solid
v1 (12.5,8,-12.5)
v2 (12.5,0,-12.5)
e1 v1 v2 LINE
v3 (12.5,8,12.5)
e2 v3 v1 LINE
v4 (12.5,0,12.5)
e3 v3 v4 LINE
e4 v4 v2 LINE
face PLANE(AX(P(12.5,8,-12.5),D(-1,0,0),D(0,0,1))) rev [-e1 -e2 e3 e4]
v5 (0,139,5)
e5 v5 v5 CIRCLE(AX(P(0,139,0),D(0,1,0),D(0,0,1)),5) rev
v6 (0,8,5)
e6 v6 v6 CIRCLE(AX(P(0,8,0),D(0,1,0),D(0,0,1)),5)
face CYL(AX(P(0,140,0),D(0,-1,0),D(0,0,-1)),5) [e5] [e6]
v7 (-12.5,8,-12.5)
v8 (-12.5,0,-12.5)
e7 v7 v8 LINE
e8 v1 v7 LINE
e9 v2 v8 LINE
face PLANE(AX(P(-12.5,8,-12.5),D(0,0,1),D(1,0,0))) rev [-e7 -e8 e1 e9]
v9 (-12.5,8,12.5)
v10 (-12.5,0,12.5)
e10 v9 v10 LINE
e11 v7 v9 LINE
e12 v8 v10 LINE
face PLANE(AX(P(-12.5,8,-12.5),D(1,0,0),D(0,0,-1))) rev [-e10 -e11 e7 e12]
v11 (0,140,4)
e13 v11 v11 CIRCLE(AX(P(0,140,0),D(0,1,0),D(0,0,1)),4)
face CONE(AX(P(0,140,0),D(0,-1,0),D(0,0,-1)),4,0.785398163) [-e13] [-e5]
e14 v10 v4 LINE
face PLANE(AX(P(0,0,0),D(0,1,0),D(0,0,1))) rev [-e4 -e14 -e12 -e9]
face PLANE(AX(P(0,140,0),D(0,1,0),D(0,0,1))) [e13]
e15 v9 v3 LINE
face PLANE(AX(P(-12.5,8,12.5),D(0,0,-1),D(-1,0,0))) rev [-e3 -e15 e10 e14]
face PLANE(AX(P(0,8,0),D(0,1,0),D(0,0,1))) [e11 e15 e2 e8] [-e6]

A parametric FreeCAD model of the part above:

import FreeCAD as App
import Part
import Sketcher


def edges_at(feature, points):
    """Names of the edges that pass closest to the given points."""
    edges = feature.Shape.Edges
    near = lambda p: min(range(len(edges)), key=lambda i: edges[i].distToShape(Part.Vertex(*p))[0])
    return sorted({f"Edge{near(p) + 1}" for p in points})

doc = App.newDocument("Part")
body = doc.addObject("PartDesign::Body", "Body")

sketch1 = doc.addObject("Sketcher::SketchObject", "Sketch")
body.addObject(sketch1)
sketch1.AttachmentSupport = (doc.XZ_Plane, [""])
sketch1.MapMode = "FlatFace"
sketch1.addGeometry([
    Part.LineSegment(App.Vector(-12.5, -12.5, 0), App.Vector(-12.5, 12.5, 0)),
    Part.LineSegment(App.Vector(-12.5, 12.5, 0), App.Vector(12.5, 12.5, 0)),
    Part.LineSegment(App.Vector(12.5, 12.5, 0), App.Vector(12.5, -12.5, 0)),
    Part.LineSegment(App.Vector(12.5, -12.5, 0), App.Vector(-12.5, -12.5, 0)),
], False)
sketch1.addConstraint([
    Sketcher.Constraint("Coincident", 0, 2, 1, 1),
    Sketcher.Constraint("Coincident", 1, 2, 2, 1),
    Sketcher.Constraint("Coincident", 2, 2, 3, 1),
    Sketcher.Constraint("Coincident", 3, 2, 0, 1),
    Sketcher.Constraint("Vertical", 0),
    Sketcher.Constraint("Horizontal", 1),
    Sketcher.Constraint("Vertical", 2),
    Sketcher.Constraint("Horizontal", 3),
    Sketcher.Constraint("Symmetric", 0, 2, 2, 2, -1, 1),
    Sketcher.Constraint("Equal", 3, 0),
    Sketcher.Constraint("DistanceX", 1, 1, 1, 2, 25.0),
])
pad1 = doc.addObject("PartDesign::Pad", "Pad")
body.addObject(pad1)
pad1.Profile = sketch1
pad1.Length = 8
pad1.Reversed = True

sketch2 = doc.addObject("Sketcher::SketchObject", "Sketch001")
body.addObject(sketch2)
sketch2.AttachmentSupport = (doc.XZ_Plane, [""])
sketch2.MapMode = "FlatFace"
sketch2.AttachmentOffset = App.Placement(App.Vector(0, 0, -8), App.Rotation())
sketch2.addGeometry(Part.Circle(App.Vector(0, 0, 0), App.Vector(0, 0, 1), 5), False)
sketch2.addConstraint([
    Sketcher.Constraint("Coincident", 0, 3, -1, 1),
    Sketcher.Constraint("Diameter", 0, 10.0),
])
pad2 = doc.addObject("PartDesign::Pad", "Pad001")
body.addObject(pad2)
pad2.Profile = sketch2
pad2.Length = 132
pad2.Reversed = True
doc.recompute()

chamfer = doc.addObject("PartDesign::Chamfer", "Chamfer")
body.addObject(chamfer)
chamfer.Base = (pad2, edges_at(pad2, [(0, 140, -5)]))
chamfer.Size = 1

doc.recompute()
